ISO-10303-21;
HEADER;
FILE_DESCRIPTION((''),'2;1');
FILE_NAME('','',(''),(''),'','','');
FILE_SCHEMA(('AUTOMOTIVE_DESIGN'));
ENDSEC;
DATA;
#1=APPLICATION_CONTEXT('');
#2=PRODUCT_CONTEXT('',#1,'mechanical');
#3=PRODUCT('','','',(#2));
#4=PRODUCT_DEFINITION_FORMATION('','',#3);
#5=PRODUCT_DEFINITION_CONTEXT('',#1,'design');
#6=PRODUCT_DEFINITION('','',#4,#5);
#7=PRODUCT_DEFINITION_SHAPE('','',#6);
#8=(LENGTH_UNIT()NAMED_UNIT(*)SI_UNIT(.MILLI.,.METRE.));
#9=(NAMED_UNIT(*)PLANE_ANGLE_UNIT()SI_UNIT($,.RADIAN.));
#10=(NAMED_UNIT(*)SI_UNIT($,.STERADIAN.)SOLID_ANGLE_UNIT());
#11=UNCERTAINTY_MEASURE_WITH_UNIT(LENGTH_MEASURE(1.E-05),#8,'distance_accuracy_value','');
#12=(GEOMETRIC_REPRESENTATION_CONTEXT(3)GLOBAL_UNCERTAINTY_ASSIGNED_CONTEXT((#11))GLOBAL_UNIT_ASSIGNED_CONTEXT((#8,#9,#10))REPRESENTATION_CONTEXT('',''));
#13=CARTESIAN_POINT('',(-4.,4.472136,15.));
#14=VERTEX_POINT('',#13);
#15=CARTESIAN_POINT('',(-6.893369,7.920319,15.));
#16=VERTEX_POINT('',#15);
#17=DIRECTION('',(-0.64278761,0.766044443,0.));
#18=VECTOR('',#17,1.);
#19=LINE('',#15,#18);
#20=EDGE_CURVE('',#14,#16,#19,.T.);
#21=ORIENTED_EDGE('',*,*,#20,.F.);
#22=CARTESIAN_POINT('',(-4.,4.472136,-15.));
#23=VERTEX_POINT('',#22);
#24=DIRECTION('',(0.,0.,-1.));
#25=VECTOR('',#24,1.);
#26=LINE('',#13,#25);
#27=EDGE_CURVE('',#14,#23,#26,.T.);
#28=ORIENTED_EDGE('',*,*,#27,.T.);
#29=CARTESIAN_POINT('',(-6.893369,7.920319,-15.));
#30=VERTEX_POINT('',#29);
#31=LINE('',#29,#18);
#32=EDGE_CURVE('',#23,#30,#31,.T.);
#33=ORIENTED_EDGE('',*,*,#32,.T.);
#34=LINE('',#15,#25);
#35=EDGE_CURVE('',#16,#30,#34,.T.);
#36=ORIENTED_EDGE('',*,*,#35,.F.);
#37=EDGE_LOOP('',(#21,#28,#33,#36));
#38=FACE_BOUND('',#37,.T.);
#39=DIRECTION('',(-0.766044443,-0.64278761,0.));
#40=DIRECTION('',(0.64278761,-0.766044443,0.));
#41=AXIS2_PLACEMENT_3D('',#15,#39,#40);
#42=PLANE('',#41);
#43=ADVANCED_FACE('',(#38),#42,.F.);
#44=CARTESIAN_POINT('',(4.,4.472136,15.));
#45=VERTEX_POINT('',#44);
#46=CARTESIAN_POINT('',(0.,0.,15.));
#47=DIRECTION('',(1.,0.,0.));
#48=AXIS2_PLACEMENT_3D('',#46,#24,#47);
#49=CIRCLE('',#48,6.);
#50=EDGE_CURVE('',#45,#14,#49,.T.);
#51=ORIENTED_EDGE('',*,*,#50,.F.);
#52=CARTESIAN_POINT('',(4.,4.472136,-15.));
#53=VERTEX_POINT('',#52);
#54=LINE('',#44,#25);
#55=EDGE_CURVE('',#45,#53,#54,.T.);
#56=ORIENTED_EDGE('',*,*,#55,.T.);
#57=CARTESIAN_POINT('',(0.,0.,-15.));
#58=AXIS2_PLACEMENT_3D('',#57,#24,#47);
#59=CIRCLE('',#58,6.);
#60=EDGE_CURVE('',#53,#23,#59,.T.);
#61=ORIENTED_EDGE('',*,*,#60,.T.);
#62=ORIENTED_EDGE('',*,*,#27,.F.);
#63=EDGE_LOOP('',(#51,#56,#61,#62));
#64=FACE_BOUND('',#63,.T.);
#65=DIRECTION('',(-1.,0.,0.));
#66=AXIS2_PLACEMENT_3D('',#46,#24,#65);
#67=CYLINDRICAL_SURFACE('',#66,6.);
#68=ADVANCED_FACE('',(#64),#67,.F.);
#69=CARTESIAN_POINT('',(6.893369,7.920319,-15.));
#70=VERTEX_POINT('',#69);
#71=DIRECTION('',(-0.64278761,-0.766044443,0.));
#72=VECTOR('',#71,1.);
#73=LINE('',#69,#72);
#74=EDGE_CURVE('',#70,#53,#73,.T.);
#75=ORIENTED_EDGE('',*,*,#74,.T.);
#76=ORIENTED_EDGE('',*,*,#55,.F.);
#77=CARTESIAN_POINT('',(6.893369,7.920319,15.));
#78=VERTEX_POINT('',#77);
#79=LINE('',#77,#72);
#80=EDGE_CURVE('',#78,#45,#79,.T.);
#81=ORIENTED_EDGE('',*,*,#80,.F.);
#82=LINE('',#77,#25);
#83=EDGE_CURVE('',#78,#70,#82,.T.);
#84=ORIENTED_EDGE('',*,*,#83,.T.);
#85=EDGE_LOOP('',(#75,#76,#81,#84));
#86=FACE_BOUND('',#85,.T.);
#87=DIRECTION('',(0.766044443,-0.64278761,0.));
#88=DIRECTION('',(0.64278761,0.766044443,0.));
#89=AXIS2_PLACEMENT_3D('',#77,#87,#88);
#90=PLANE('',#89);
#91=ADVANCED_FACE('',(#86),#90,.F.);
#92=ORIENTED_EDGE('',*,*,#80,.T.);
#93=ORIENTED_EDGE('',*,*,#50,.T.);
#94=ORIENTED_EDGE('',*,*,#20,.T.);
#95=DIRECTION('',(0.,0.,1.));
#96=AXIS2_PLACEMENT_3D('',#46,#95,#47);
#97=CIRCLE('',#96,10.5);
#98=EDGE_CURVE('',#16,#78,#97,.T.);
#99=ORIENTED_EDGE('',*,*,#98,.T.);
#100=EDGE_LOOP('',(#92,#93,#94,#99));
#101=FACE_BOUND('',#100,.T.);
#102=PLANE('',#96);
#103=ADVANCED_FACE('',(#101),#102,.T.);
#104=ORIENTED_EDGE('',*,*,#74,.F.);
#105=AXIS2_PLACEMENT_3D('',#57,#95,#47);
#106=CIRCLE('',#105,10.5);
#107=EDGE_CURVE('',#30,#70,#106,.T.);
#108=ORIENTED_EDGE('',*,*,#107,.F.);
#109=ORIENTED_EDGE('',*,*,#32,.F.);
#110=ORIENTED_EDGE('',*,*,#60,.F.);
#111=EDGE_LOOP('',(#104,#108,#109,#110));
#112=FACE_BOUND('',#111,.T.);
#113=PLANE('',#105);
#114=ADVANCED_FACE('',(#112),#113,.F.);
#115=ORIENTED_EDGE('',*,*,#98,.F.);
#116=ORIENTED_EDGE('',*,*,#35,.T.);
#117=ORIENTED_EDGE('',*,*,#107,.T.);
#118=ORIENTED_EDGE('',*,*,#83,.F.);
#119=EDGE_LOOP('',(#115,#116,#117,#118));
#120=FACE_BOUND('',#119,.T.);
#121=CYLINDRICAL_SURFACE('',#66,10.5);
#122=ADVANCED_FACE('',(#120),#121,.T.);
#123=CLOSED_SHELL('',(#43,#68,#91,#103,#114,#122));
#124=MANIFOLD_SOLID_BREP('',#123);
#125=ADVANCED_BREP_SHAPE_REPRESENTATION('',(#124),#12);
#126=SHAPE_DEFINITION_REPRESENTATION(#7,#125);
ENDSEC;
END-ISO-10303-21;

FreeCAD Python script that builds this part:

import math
import FreeCAD as App
import Part
import Sketcher

V = App.Vector
Q = App.Units.Quantity

doc = App.newDocument("Part")
body = doc.addObject("PartDesign::Body", "Body")

# Sketch on XY plane
sketch1 = doc.addObject("Sketcher::SketchObject", "Sketch")
body.addObject(sketch1)
sketch1.AttachmentSupport = (doc.XY_Plane, [""])
sketch1.MapMode = "FlatFace"
sketch1.addGeometry(Part.LineSegment(V(-4, 4.5, 0), V(-6.9, 7.9, 0)), False)
sketch1.addGeometry(Part.ArcOfCircle(Part.Circle(V(0, 0, 0), V(0, 0, 1), 10.5), math.radians(131), math.radians(409)), False)
sketch1.addGeometry(Part.LineSegment(V(6.9, 7.9, 0), V(4, 4.5, 0)), False)
sketch1.addGeometry(Part.ArcOfCircle(Part.Circle(V(0, 0, 0), V(0, 0, 1), 6), math.radians(132), math.radians(408)), False)
sketch1.addConstraint(Sketcher.Constraint("Coincident", 0, 2, 1, 1))
sketch1.addConstraint(Sketcher.Constraint("Coincident", 1, 2, 2, 1))
sketch1.addConstraint(Sketcher.Constraint("Coincident", 2, 2, 3, 2))
sketch1.addConstraint(Sketcher.Constraint("Coincident", 3, 1, 0, 1))
sketch1.addConstraint(Sketcher.Constraint("Coincident", 1, 3, -1, 1))
sketch1.addConstraint(Sketcher.Constraint("Coincident", 3, 3, -1, 1))
sketch1.addConstraint(Sketcher.Constraint("Horizontal", 0, 2, 1, 2))
sketch1.addConstraint(Sketcher.Constraint("Horizontal", 2, 2, 3, 1))
sketch1.addConstraint(Sketcher.Constraint("Radius", 3, 6.0))
sketch1.addConstraint(Sketcher.Constraint("Radius", 1, 10.5))
sketch1.addConstraint(Sketcher.Constraint("Angle", 0, Q("130 deg")))
sketch1.addConstraint(Sketcher.Constraint("DistanceX", -1, 1, 2, 2, 4.0))
pad1 = doc.addObject("PartDesign::Pad", "Pad")
body.addObject(pad1)
pad1.Profile = sketch1
pad1.Length = 30
pad1.Midplane = True

doc.recompute()
